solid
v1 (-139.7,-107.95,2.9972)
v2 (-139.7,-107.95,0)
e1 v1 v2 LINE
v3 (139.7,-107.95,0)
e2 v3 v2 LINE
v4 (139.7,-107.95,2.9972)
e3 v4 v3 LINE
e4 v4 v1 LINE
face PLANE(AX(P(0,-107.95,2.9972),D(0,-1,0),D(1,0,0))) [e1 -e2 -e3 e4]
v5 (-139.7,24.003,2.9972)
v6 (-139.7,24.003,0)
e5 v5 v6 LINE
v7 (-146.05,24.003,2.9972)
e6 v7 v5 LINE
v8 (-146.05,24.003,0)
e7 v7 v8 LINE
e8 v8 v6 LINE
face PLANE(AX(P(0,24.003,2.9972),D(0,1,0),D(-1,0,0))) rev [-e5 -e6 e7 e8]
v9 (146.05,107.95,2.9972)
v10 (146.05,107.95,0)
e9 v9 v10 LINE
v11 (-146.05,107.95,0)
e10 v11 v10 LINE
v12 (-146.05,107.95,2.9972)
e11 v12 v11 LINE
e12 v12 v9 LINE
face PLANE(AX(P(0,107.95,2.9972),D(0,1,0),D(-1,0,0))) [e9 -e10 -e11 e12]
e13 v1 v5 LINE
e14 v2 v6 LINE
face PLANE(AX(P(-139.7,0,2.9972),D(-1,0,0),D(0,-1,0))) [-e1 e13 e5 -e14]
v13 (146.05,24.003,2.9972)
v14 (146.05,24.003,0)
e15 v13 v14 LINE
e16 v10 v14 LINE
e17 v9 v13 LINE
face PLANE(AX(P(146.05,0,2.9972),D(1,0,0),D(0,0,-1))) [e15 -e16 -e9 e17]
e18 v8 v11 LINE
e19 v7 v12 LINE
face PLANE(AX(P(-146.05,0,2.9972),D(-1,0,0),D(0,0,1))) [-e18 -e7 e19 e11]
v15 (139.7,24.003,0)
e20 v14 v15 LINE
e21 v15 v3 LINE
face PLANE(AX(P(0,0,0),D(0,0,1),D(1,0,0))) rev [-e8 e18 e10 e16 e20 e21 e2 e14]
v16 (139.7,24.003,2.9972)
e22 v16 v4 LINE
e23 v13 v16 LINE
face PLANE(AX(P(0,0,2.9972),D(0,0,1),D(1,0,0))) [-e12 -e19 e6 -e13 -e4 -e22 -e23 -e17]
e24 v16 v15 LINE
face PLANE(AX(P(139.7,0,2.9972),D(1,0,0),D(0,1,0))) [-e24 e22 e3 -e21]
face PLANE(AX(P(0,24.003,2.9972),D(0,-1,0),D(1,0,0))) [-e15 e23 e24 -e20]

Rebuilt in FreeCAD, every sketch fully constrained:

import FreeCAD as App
import Part
import Sketcher
Q = App.Units.Quantity

doc = App.newDocument("Part")
body = doc.addObject("PartDesign::Body", "Body")

# Sketch on XY plane
sketch1 = body.newObject("Sketcher::SketchObject", "Sketch")
sketch1.AttachmentSupport = (doc.getObject("XY_Plane"), [""])
sketch1.MapMode = "FlatFace"
sketch1.addGeometry(Part.LineSegment(App.Vector(-146, 108, 0), App.Vector(-146, 24, 0)), False)
sketch1.addGeometry(Part.LineSegment(App.Vector(-146, 24, 0), App.Vector(-140, 24, 0)), False)
sketch1.addGeometry(Part.LineSegment(App.Vector(-140, 24, 0), App.Vector(-140, -108, 0)), False)
sketch1.addGeometry(Part.LineSegment(App.Vector(-140, -108, 0), App.Vector(140, -108, 0)), False)
sketch1.addGeometry(Part.LineSegment(App.Vector(140, -108, 0), App.Vector(140, 24, 0)), False)
sketch1.addGeometry(Part.LineSegment(App.Vector(140, 24, 0), App.Vector(146, 24, 0)), False)
sketch1.addGeometry(Part.LineSegment(App.Vector(146, 24, 0), App.Vector(146, 108, 0)), False)
sketch1.addGeometry(Part.LineSegment(App.Vector(146, 108, 0), App.Vector(-146, 108, 0)), False)
sketch1.addConstraint(Sketcher.Constraint("Coincident", 0, 2, 1, 1))
sketch1.addConstraint(Sketcher.Constraint("Coincident", 1, 2, 2, 1))
sketch1.addConstraint(Sketcher.Constraint("Coincident", 2, 2, 3, 1))
sketch1.addConstraint(Sketcher.Constraint("Coincident", 3, 2, 4, 1))
sketch1.addConstraint(Sketcher.Constraint("Coincident", 4, 2, 5, 1))
sketch1.addConstraint(Sketcher.Constraint("Coincident", 5, 2, 6, 1))
sketch1.addConstraint(Sketcher.Constraint("Coincident", 6, 2, 7, 1))
sketch1.addConstraint(Sketcher.Constraint("Coincident", 7, 2, 0, 1))
sketch1.addConstraint(Sketcher.Constraint("Vertical", 0))
sketch1.addConstraint(Sketcher.Constraint("Horizontal", 1))
sketch1.addConstraint(Sketcher.Constraint("Vertical", 2))
sketch1.addConstraint(Sketcher.Constraint("Horizontal", 3))
sketch1.addConstraint(Sketcher.Constraint("Vertical", 4))
sketch1.addConstraint(Sketcher.Constraint("Horizontal", 5))
sketch1.addConstraint(Sketcher.Constraint("Vertical", 6))
sketch1.addConstraint(Sketcher.Constraint("Horizontal", 7))
sketch1.addConstraint(Sketcher.Constraint("Symmetric", 1, 2, 4, 2, -2))
sketch1.addConstraint(Sketcher.Constraint("Equal", 1, 5))
sketch1.addConstraint(Sketcher.Constraint("DistanceX", 3, 1, 3, 2, Q("11 in")))
sketch1.addConstraint(Sketcher.Constraint("DistanceX", 7, 2, 7, 1, Q("11.5 in")))
sketch1.addConstraint(Sketcher.Constraint("DistanceY", 3, 2, 6, 2, Q("8.5 in")))
sketch1.addConstraint(Sketcher.Constraint("DistanceY", 0, 2, 0, 1, Q("3.305 in")))
sketch1.addConstraint(Sketcher.Constraint("DistanceY", 2, 2, -1, 1, Q("4.25 in")))
pad1 = body.newObject("PartDesign::Pad", "Pad")
pad1.Profile = sketch1
pad1.Length = Q("0.118 in")

doc.recompute()
